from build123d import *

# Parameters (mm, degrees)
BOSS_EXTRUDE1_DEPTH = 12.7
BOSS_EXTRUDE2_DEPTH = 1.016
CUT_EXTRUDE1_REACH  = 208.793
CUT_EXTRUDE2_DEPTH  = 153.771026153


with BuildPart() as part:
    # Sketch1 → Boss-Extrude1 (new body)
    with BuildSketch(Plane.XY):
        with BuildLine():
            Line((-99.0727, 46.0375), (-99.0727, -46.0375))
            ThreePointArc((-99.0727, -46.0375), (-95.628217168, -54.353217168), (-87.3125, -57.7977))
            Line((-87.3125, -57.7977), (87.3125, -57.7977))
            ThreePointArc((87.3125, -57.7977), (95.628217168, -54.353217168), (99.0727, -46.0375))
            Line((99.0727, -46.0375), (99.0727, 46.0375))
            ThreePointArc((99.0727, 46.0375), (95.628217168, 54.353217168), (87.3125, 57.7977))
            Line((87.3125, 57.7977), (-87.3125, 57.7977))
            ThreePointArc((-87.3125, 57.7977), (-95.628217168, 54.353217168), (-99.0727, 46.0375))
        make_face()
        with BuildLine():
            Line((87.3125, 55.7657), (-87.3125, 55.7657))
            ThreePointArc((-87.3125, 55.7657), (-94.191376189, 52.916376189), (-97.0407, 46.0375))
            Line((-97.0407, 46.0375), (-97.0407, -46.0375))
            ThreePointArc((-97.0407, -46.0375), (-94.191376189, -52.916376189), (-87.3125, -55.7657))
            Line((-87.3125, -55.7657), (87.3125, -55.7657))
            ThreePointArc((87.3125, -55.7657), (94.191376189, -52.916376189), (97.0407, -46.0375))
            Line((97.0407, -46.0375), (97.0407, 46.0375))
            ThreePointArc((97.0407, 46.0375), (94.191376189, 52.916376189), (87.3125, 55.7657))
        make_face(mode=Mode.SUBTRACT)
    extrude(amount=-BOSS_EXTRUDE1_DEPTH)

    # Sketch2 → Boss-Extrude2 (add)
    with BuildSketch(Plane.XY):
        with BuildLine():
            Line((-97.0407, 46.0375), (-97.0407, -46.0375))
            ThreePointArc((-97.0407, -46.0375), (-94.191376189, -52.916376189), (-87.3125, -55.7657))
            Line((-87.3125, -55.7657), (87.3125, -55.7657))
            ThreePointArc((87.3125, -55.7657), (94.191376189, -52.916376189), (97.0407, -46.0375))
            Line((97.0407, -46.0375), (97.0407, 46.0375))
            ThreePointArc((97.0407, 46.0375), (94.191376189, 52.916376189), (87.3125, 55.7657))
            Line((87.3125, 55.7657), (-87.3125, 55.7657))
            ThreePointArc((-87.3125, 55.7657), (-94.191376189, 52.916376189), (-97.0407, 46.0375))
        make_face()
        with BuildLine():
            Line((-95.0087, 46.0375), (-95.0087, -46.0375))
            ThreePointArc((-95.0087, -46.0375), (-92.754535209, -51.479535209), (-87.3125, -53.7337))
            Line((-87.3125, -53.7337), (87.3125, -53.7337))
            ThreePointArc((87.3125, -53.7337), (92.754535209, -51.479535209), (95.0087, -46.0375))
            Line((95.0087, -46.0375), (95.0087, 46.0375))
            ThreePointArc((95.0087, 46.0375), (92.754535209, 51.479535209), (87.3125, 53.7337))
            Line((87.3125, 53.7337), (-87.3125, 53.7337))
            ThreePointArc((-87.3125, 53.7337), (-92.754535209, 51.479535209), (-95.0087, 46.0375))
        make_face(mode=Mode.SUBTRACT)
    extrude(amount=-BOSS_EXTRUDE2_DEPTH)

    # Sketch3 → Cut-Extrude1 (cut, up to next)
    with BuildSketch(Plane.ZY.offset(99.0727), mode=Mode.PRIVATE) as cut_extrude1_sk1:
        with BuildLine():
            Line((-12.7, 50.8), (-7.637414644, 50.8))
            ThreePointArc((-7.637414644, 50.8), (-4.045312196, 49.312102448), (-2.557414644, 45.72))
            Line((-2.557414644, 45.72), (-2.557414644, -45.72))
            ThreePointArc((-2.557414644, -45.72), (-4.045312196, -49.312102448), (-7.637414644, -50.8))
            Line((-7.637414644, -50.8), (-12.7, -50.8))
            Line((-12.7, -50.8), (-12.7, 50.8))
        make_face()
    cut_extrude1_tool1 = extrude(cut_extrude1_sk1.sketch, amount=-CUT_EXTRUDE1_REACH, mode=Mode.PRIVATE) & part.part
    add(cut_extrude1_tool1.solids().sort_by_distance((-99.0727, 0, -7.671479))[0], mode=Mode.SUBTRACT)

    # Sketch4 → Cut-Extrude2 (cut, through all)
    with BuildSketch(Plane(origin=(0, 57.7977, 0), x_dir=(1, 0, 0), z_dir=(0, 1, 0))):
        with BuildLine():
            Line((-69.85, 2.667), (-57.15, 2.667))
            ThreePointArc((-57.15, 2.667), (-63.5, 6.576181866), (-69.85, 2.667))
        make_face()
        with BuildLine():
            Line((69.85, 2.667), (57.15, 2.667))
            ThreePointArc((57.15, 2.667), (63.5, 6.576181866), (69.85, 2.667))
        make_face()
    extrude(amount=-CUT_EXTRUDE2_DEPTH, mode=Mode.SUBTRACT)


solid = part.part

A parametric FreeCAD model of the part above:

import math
import FreeCAD as App
import Part
import Sketcher

V = App.Vector
Q = App.Units.Quantity

doc = App.newDocument("Part")
body = doc.addObject("PartDesign::Body", "Body")

sketch1 = body.newObject("Sketcher::SketchObject", "Sketch")
sketch1.AttachmentSupport = (doc.getObject("XY_Plane"), [""])
sketch1.MapMode = "FlatFace"
sketch1.addGeometry([
    Part.LineSegment(V(-99, 46, 0), V(-99, -46, 0)),
    Part.ArcOfCircle(Part.Circle(V(-87, -46, 0), V(0, 0, 1), 12), math.radians(180), math.radians(270)),
    Part.LineSegment(V(-87, -58, 0), V(87, -58, 0)),
    Part.ArcOfCircle(Part.Circle(V(87, -46, 0), V(0, 0, 1), 12), math.radians(-90), math.radians(0)),
    Part.LineSegment(V(99, -46, 0), V(99, 46, 0)),
    Part.ArcOfCircle(Part.Circle(V(87, 46, 0), V(0, 0, 1), 12), math.radians(0), math.radians(90)),
    Part.LineSegment(V(87, 58, 0), V(-87, 58, 0)),
    Part.ArcOfCircle(Part.Circle(V(-87, 46, 0), V(0, 0, 1), 12), math.radians(90), math.radians(180)),
    Part.LineSegment(V(-87, 56, 0), V(87, 56, 0)),
    Part.ArcOfCircle(Part.Circle(V(87, 46, 0), V(0, 0, 1), 10), math.radians(0), math.radians(90)),
    Part.LineSegment(V(97, 46, 0), V(97, -46, 0)),
    Part.ArcOfCircle(Part.Circle(V(87, -46, 0), V(0, 0, 1), 10), math.radians(-90), math.radians(0)),
    Part.LineSegment(V(87, -56, 0), V(-87, -56, 0)),
    Part.ArcOfCircle(Part.Circle(V(-87, -46, 0), V(0, 0, 1), 10), math.radians(180), math.radians(270)),
    Part.LineSegment(V(-97, -46, 0), V(-97, 46, 0)),
    Part.ArcOfCircle(Part.Circle(V(-87, 46, 0), V(0, 0, 1), 10), math.radians(90), math.radians(180)),
], False)
sketch1.addConstraint([
    Sketcher.Constraint("Tangent", 0, 2, 1, 1),
    Sketcher.Constraint("Tangent", 1, 2, 2, 1),
    Sketcher.Constraint("Tangent", 2, 2, 3, 1),
    Sketcher.Constraint("Tangent", 3, 2, 4, 1),
    Sketcher.Constraint("Tangent", 4, 2, 5, 1),
    Sketcher.Constraint("Tangent", 5, 2, 6, 1),
    Sketcher.Constraint("Tangent", 6, 2, 7, 1),
    Sketcher.Constraint("Tangent", 7, 2, 0, 1),
    Sketcher.Constraint("Tangent", 8, 2, 9, 2),
    Sketcher.Constraint("Tangent", 9, 1, 10, 1),
    Sketcher.Constraint("Tangent", 10, 2, 11, 2),
    Sketcher.Constraint("Tangent", 11, 1, 12, 1),
    Sketcher.Constraint("Tangent", 12, 2, 13, 2),
    Sketcher.Constraint("Tangent", 13, 1, 14, 1),
    Sketcher.Constraint("Tangent", 14, 2, 15, 2),
    Sketcher.Constraint("Tangent", 15, 1, 8, 1),
    Sketcher.Constraint("Vertical", 0),
    Sketcher.Constraint("Horizontal", 2),
    Sketcher.Constraint("Vertical", 4),
    Sketcher.Constraint("Horizontal", 6),
    Sketcher.Constraint("Horizontal", 8),
    Sketcher.Constraint("Vertical", 10),
    Sketcher.Constraint("Horizontal", 12),
    Sketcher.Constraint("Vertical", 14),
    Sketcher.Constraint("Coincident", 9, 3, 5, 3),
    Sketcher.Constraint("Coincident", 11, 3, 3, 3),
    Sketcher.Constraint("Coincident", 13, 3, 1, 3),
    Sketcher.Constraint("Equal", 1, 3),
    Sketcher.Constraint("Equal", 3, 5),
    Sketcher.Constraint("Equal", 5, 7),
    Sketcher.Constraint("Equal", 13, 15),
    Sketcher.Constraint("Symmetric", 1, 3, 5, 3, -1, 1),
    Sketcher.Constraint("Radius", 1, Q("0.463 in")),
    Sketcher.Constraint("Radius", 9, Q("0.383 in")),
    Sketcher.Constraint("DistanceX", 2, 1, 2, 2, Q("6.875 in")),
    Sketcher.Constraint("DistanceY", 0, 2, 0, 1, Q("3.625 in")),
])
pad1 = body.newObject("PartDesign::Pad", "Pad")
pad1.Profile = sketch1
pad1.Length = Q("0.5 in")
pad1.Reversed = True

sketch2 = body.newObject("Sketcher::SketchObject", "Sketch001")
sketch2.AttachmentSupport = (doc.getObject("XY_Plane"), [""])
sketch2.MapMode = "FlatFace"
sketch2.addGeometry([
    Part.LineSegment(V(-97, 46, 0), V(-97, -46, 0)),
    Part.ArcOfCircle(Part.Circle(V(-87, -46, 0), V(0, 0, 1), 10), math.radians(180), math.radians(270)),
    Part.LineSegment(V(-87, -56, 0), V(87, -56, 0)),
    Part.ArcOfCircle(Part.Circle(V(87, -46, 0), V(0, 0, 1), 10), math.radians(-90), math.radians(0)),
    Part.LineSegment(V(97, -46, 0), V(97, 46, 0)),
    Part.ArcOfCircle(Part.Circle(V(87, 46, 0), V(0, 0, 1), 10), math.radians(0), math.radians(90)),
    Part.LineSegment(V(87, 56, 0), V(-87, 56, 0)),
    Part.ArcOfCircle(Part.Circle(V(-87, 46, 0), V(0, 0, 1), 10), math.radians(90), math.radians(180)),
    Part.LineSegment(V(-95, -46, 0), V(-95, 46, 0)),
    Part.ArcOfCircle(Part.Circle(V(-87, 46, 0), V(0, 0, 1), 8), math.radians(90), math.radians(180)),
    Part.LineSegment(V(-87, 54, 0), V(87, 54, 0)),
    Part.ArcOfCircle(Part.Circle(V(87, 46, 0), V(0, 0, 1), 8), math.radians(0), math.radians(90)),
    Part.LineSegment(V(95, 46, 0), V(95, -46, 0)),
    Part.ArcOfCircle(Part.Circle(V(87, -46, 0), V(0, 0, 1), 8), math.radians(-90), math.radians(0)),
    Part.LineSegment(V(87, -54, 0), V(-87, -54, 0)),
    Part.ArcOfCircle(Part.Circle(V(-87, -46, 0), V(0, 0, 1), 8), math.radians(-180), math.radians(-90)),
], False)
sketch2.addConstraint([
    Sketcher.Constraint("Tangent", 0, 2, 1, 1),
    Sketcher.Constraint("Tangent", 1, 2, 2, 1),
    Sketcher.Constraint("Tangent", 2, 2, 3, 1),
    Sketcher.Constraint("Tangent", 3, 2, 4, 1),
    Sketcher.Constraint("Tangent", 4, 2, 5, 1),
    Sketcher.Constraint("Tangent", 5, 2, 6, 1),
    Sketcher.Constraint("Tangent", 6, 2, 7, 1),
    Sketcher.Constraint("Tangent", 7, 2, 0, 1),
    Sketcher.Constraint("Tangent", 8, 2, 9, 2),
    Sketcher.Constraint("Tangent", 9, 1, 10, 1),
    Sketcher.Constraint("Tangent", 10, 2, 11, 2),
    Sketcher.Constraint("Tangent", 11, 1, 12, 1),
    Sketcher.Constraint("Tangent", 12, 2, 13, 2),
    Sketcher.Constraint("Tangent", 13, 1, 14, 1),
    Sketcher.Constraint("Tangent", 14, 2, 15, 2),
    Sketcher.Constraint("Tangent", 15, 1, 8, 1),
    Sketcher.Constraint("Vertical", 0),
    Sketcher.Constraint("Horizontal", 2),
    Sketcher.Constraint("Vertical", 4),
    Sketcher.Constraint("Horizontal", 6),
    Sketcher.Constraint("Vertical", 8),
    Sketcher.Constraint("Horizontal", 10),
    Sketcher.Constraint("Vertical", 12),
    Sketcher.Constraint("Horizontal", 14),
    Sketcher.Constraint("Coincident", 9, 3, 7, 3),
    Sketcher.Constraint("Coincident", 11, 3, 5, 3),
    Sketcher.Constraint("Coincident", 13, 3, 3, 3),
    Sketcher.Constraint("Equal", 1, 3),
    Sketcher.Constraint("Equal", 3, 5),
    Sketcher.Constraint("Equal", 5, 7),
    Sketcher.Constraint("Equal", 13, 15),
    Sketcher.Constraint("Symmetric", 1, 3, 5, 3, -1, 1),
    Sketcher.Constraint("Radius", 1, Q("0.383 in")),
    Sketcher.Constraint("Radius", 9, Q("0.303 in")),
    Sketcher.Constraint("DistanceX", 2, 1, 2, 2, Q("6.875 in")),
    Sketcher.Constraint("DistanceY", 0, 2, 0, 1, Q("3.625 in")),
])
pad2 = body.newObject("PartDesign::Pad", "Pad001")
pad2.Profile = sketch2
pad2.Length = Q("0.04 in")
pad2.Reversed = True

sketch3 = body.newObject("Sketcher::SketchObject", "Sketch002")
sketch3.AttachmentSupport = (doc.getObject("YZ_Plane"), [""])
sketch3.MapMode = "FlatFace"
sketch3.AttachmentOffset = App.Placement(V(0, 0, -3.9005 * 25.4), App.Rotation())
sketch3.addGeometry([
    Part.LineSegment(V(51, -8, 0), V(51, -13, 0)),
    Part.LineSegment(V(51, -13, 0), V(-51, -13, 0)),
    Part.LineSegment(V(-51, -13, 0), V(-51, -8, 0)),
    Part.ArcOfCircle(Part.Circle(V(-46, -8, 0), V(0, 0, 1), 5), math.radians(90), math.radians(180)),
    Part.LineSegment(V(-46, -3, 0), V(46, -3, 0)),
    Part.ArcOfCircle(Part.Circle(V(46, -8, 0), V(0, 0, 1), 5), math.radians(0), math.radians(90)),
], False)
sketch3.addConstraint([
    Sketcher.Constraint("Coincident", 0, 2, 1, 1),
    Sketcher.Constraint("Coincident", 1, 2, 2, 1),
    Sketcher.Constraint("Tangent", 2, 2, 3, 2),
    Sketcher.Constraint("Tangent", 3, 1, 4, 1),
    Sketcher.Constraint("Tangent", 4, 2, 5, 2),
    Sketcher.Constraint("Tangent", 5, 1, 0, 1),
    Sketcher.Constraint("Vertical", 0),
    Sketcher.Constraint("Horizontal", 1),
    Sketcher.Constraint("Vertical", 2),
    Sketcher.Constraint("Horizontal", 4),
    Sketcher.Constraint("Equal", 3, 5),
    Sketcher.Constraint("Radius", 3, Q("0.2 in")),
    Sketcher.Constraint("DistanceX", 1, 2, 1, 1, Q("4 in")),
    Sketcher.Constraint("DistanceX", -1, 1, 0, 2, Q("2 in")),
    Sketcher.Constraint("DistanceY", 0, 2, -1, 1, Q("0.5 in")),
    Sketcher.Constraint("DistanceY", 0, 2, 0, 1, Q("5.062585 mm")),
])
pocket1 = body.newObject("PartDesign::Pocket", "Pocket")
pocket1.Profile = sketch3
pocket1.Length = 3.277484
pocket1.Reversed = True

sketch4 = body.newObject("Sketcher::SketchObject", "Sketch003")
sketch4.AttachmentSupport = (doc.getObject("XZ_Plane"), [""])
sketch4.MapMode = "FlatFace"
sketch4.AttachmentOffset = App.Placement(V(0, 0, -2.2755 * 25.4), App.Rotation())
sketch4.addGeometry([
    Part.LineSegment(V(-70, -3, 0), V(-57, -3, 0)),
    Part.ArcOfCircle(Part.Circle(V(-64, 1, 0), V(0, 0, 1), 7), math.radians(-153), math.radians(-27)),
    Part.LineSegment(V(57, -3, 0), V(70, -3, 0)),
    Part.ArcOfCircle(Part.Circle(V(64, 1, 0), V(0, 0, 1), 7), math.radians(-153), math.radians(-27)),
], False)
sketch4.addConstraint([
    Sketcher.Constraint("Coincident", 0, 1, 1, 1),
    Sketcher.Constraint("Coincident", 1, 2, 0, 2),
    Sketcher.Constraint("Coincident", 2, 1, 3, 1),
    Sketcher.Constraint("Coincident", 3, 2, 2, 2),
    Sketcher.Constraint("Horizontal", 0),
    Sketcher.Constraint("Horizontal", 2),
    Sketcher.Constraint("Equal", 1, 3),
    Sketcher.Constraint("Symmetric", 1, 3, 3, 3, -2),
    Sketcher.Constraint("Horizontal", 1, 2, 2, 1),
    Sketcher.Constraint("Radius", 1, Q("0.28 in")),
    Sketcher.Constraint("DistanceX", 0, 1, 0, 2, Q("0.5 in")),
    Sketcher.Constraint("DistanceX", 1, 3, 3, 3, Q("5 in")),
    Sketcher.Constraint("DistanceY", 0, 1, -1, 1, Q("0.105 in")),
])
pocket2 = body.newObject("PartDesign::Pocket", "Pocket001")
pocket2.Profile = sketch4
pocket2.Type = "ThroughAll"
pocket2.Reversed = True

doc.recompute()
